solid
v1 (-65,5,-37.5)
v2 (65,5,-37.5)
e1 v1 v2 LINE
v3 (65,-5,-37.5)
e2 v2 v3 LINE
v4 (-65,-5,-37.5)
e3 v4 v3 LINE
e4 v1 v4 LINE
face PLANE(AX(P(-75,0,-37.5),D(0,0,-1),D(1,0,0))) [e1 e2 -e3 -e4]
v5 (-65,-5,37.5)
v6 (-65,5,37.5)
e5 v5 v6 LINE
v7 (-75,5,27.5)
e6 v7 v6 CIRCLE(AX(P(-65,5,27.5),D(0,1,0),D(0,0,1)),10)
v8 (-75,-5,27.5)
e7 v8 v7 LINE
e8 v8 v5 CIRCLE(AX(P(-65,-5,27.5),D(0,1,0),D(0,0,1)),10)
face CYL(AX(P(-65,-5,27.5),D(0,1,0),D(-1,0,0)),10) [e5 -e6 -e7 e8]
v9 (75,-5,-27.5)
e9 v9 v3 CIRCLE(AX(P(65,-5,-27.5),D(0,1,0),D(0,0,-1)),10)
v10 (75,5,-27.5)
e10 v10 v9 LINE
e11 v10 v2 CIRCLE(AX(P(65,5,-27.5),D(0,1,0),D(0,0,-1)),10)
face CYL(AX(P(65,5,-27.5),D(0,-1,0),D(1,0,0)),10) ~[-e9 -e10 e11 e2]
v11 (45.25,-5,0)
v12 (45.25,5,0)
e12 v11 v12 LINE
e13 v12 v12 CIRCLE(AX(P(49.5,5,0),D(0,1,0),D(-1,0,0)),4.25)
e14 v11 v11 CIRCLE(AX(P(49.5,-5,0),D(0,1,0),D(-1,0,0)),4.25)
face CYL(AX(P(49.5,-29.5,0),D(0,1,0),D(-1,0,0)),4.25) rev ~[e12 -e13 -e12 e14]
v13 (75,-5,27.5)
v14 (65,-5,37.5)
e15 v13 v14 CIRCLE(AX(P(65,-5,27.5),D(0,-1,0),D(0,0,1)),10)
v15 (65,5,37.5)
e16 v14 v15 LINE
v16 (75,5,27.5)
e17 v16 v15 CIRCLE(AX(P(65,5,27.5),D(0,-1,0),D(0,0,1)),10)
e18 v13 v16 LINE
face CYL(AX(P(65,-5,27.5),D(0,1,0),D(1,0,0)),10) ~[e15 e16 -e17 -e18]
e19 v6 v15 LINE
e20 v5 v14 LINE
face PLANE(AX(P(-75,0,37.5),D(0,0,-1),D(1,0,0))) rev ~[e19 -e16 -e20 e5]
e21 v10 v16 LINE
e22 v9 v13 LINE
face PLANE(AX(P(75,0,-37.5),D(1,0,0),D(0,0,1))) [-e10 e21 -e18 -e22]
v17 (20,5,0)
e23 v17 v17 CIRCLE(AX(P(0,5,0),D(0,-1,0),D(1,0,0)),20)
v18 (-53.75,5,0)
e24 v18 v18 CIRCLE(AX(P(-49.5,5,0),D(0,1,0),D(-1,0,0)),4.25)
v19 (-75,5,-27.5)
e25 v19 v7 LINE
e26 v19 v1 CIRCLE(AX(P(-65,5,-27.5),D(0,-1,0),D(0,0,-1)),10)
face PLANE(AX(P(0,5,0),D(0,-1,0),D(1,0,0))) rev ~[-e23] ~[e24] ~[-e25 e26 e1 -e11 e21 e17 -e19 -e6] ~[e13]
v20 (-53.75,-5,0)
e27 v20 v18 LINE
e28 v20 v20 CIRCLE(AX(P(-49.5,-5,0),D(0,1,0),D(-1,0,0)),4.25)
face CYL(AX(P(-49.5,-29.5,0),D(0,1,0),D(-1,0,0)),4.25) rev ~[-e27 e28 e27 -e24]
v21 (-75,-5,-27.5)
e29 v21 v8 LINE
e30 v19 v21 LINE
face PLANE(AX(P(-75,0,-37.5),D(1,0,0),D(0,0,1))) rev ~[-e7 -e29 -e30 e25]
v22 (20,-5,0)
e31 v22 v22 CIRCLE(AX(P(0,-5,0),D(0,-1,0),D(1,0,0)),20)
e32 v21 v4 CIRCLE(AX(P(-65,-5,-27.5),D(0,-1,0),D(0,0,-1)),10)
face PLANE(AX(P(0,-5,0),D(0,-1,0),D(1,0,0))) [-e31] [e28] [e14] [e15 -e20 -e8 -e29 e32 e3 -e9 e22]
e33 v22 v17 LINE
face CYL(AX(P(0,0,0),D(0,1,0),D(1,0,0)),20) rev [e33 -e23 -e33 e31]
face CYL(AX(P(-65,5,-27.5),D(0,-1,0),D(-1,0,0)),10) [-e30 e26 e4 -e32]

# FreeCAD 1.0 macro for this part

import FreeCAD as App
import Part
import Sketcher

V = App.Vector


def edges_at(feature, points):
    """Names of the edges that pass closest to the given points."""
    edges = feature.Shape.Edges
    near = lambda p: min(range(len(edges)), key=lambda i: edges[i].distToShape(Part.Vertex(*p))[0])
    return sorted({f"Edge{near(p) + 1}" for p in points})

doc = App.newDocument("Part")
params = doc.addObject("Spreadsheet::Sheet", "Params")
for row, (alias, value) in enumerate([
    ("sketch1_diameter", "40 mm"),
    ("sketch1_width", "150 mm"),
    ("sketch1_height", "75 mm"),
    ("pad1_length", "10 mm"),
    ("fillet_radius", "10 mm"),
    ("sketch2_diameter", "8.5 mm"),
    ("hole_diameter", "8.5 mm"),
    ("hole_depth", "24.5 mm"),
], start=1):
    params.set(f"A{row}", alias)
    params.set(f"B{row}", "=" + value)
    params.setAlias(f"B{row}", alias)

body = doc.addObject("PartDesign::Body", "Body")

# Sketch on XZ plane
sketch1 = body.newObject("Sketcher::SketchObject", "Sketch")
sketch1.AttachmentSupport = (doc.getObject("XZ_Plane"), [""])
sketch1.MapMode = "FlatFace"
sketch1.addGeometry(Part.LineSegment(V(-75, 38, 0), V(-75, -38, 0)), False)
sketch1.addGeometry(Part.LineSegment(V(-75, -38, 0), V(75, -38, 0)), False)
sketch1.addGeometry(Part.LineSegment(V(75, -38, 0), V(75, 38, 0)), False)
sketch1.addGeometry(Part.LineSegment(V(75, 38, 0), V(-75, 38, 0)), False)
sketch1.addGeometry(Part.Circle(V(0, 0, 0), V(0, 0, 1), 20), False)
sketch1.addConstraint(Sketcher.Constraint("Coincident", 0, 2, 1, 1))
sketch1.addConstraint(Sketcher.Constraint("Coincident", 1, 2, 2, 1))
sketch1.addConstraint(Sketcher.Constraint("Coincident", 2, 2, 3, 1))
sketch1.addConstraint(Sketcher.Constraint("Coincident", 3, 2, 0, 1))
sketch1.addConstraint(Sketcher.Constraint("Vertical", 0))
sketch1.addConstraint(Sketcher.Constraint("Horizontal", 1))
sketch1.addConstraint(Sketcher.Constraint("Vertical", 2))
sketch1.addConstraint(Sketcher.Constraint("Horizontal", 3))
sketch1.addConstraint(Sketcher.Constraint("Coincident", 4, 3, -1, 1))
sketch1.addConstraint(Sketcher.Constraint("Symmetric", 0, 2, 2, 2, -1, 1))
sketch1.addConstraint(Sketcher.Constraint("Diameter", 4, 40.0))
sketch1.addConstraint(Sketcher.Constraint("DistanceX", 1, 1, 1, 2, 150.0))
sketch1.addConstraint(Sketcher.Constraint("DistanceY", 0, 2, 0, 1, 75.0))
sketch1.setExpression("Constraints[10]", "Params.sketch1_diameter")
sketch1.setExpression("Constraints[11]", "Params.sketch1_width")
sketch1.setExpression("Constraints[12]", "Params.sketch1_height")
pad1 = body.newObject("PartDesign::Pad", "Pad")
pad1.Profile = sketch1
pad1.setExpression("Length", "Params.pad1_length")
pad1.Midplane = True
doc.recompute()

fillet = body.newObject("PartDesign::Fillet", "Fillet")
fillet.Base = (pad1, edges_at(pad1, [
    (-75, 0, 37.5),
    (75, 0, 37.5),
    (75, 0, -37.5),
    (-75, 0, -37.5),
]))
fillet.setExpression("Radius", "Params.fillet_radius")

# Sketch on XZ plane
sketch2 = body.newObject("Sketcher::SketchObject", "Sketch001")
sketch2.AttachmentSupport = (doc.getObject("XZ_Plane"), [""])
sketch2.MapMode = "FlatFace"
sketch2.AttachmentOffset = App.Placement(V(0, 0, 5), App.Rotation())
sketch2.addGeometry(Part.Circle(V(-49.5, 0, 0), V(0, 0, 1), 4.2), False)
sketch2.addGeometry(Part.Circle(V(49.5, 0, 0), V(0, 0, 1), 4.2), False)
sketch2.addConstraint(Sketcher.Constraint("Equal", 0, 1))
sketch2.addConstraint(Sketcher.Constraint("Symmetric", 0, 3, 1, 3, -1, 1))
sketch2.addConstraint(Sketcher.Constraint("PointOnObject", 0, 3, -1))
sketch2.addConstraint(Sketcher.Constraint("Diameter", 0, 8.5))
sketch2.addConstraint(Sketcher.Constraint("DistanceX", 0, 3, 1, 3, 99.0))
sketch2.setExpression("Constraints[3]", "Params.sketch2_diameter")
doc.recompute()
hole = body.newObject("PartDesign::Hole", "Hole")
hole.Profile = sketch2
hole.ThreadType = "None"
hole.setExpression("Diameter", "Params.hole_diameter")
hole.DepthType = "Dimension"
hole.setExpression("Depth", "Params.hole_depth")
hole.DrillPoint = "Angled"
hole.DrillPointAngle = 118

doc.recompute()
